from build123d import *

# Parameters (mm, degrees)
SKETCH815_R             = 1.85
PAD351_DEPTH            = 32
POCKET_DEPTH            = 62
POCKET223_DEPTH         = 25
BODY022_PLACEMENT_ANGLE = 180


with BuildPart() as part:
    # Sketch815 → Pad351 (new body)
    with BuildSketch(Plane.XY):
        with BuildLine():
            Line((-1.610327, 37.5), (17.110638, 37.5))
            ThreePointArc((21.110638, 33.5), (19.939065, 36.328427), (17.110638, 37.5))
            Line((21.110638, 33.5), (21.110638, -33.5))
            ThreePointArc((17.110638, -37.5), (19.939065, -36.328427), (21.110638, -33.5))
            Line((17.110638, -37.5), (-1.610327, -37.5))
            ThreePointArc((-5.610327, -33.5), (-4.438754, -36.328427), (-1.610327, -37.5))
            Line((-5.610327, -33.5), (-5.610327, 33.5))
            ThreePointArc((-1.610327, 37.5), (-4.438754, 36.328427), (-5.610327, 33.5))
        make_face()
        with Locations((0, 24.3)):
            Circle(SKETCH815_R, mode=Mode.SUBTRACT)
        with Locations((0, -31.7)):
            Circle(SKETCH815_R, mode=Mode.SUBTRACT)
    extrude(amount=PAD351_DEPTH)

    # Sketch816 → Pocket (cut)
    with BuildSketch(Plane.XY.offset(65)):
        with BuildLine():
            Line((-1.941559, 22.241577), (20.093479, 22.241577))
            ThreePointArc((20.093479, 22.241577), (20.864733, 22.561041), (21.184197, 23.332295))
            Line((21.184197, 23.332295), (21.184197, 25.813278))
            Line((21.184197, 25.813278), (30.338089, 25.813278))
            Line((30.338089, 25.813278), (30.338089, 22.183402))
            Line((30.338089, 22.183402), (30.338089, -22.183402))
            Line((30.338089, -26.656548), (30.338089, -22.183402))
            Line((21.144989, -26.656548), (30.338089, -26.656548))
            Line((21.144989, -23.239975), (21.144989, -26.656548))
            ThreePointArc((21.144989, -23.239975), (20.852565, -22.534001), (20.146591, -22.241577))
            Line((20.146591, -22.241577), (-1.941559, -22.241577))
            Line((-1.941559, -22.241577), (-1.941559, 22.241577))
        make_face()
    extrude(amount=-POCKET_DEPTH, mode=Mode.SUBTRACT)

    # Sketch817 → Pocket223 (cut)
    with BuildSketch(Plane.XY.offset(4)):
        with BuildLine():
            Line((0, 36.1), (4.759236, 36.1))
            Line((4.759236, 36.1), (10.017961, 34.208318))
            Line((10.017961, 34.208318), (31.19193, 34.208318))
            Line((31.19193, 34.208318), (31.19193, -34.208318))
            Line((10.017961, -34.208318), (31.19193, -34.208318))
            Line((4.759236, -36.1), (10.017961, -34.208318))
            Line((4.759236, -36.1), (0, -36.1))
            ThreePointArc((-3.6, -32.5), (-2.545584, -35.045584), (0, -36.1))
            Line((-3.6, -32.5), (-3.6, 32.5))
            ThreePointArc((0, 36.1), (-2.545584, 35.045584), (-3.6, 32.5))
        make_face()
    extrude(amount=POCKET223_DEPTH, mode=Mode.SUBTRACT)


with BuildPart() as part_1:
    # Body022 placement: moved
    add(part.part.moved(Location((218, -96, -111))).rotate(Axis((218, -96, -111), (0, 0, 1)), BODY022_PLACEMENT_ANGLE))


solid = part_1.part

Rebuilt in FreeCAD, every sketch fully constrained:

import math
import FreeCAD as App
import Part
import Sketcher

V = App.Vector
Q = App.Units.Quantity

doc = App.newDocument("Part")
params = doc.addObject("Spreadsheet::Sheet", "Params")
for row, (alias, value) in enumerate([
    ("sketch1_radius", "4 mm"),
    ("sketch1_diameter", "3.7 mm"),
    ("sketch1_height", "67 mm"),
    ("pad1_length", "32 mm"),
    ("pocket1_length", "62 mm"),
    ("sketch3_radius", "3.600001 mm"),
    ("sketch3_height", "65 mm"),
    ("pocket2_length", "25 mm"),
], start=1):
    params.set(f"A{row}", alias)
    params.set(f"B{row}", "=" + value)
    params.setAlias(f"B{row}", alias)

body = doc.addObject("PartDesign::Body", "Body")

sketch1 = body.newObject("Sketcher::SketchObject", "Sketch")
sketch1.AttachmentSupport = (doc.getObject("XY_Plane"), [""])
sketch1.MapMode = "FlatFace"
sketch1.addGeometry(Part.LineSegment(V(17.110638, 37.5, 0), V(-1.610327, 37.5, 0)), False)
sketch1.addGeometry(Part.ArcOfCircle(Part.Circle(V(-1.610327, 33.5, 0), V(0, 0, 1), 4), math.radians(90.000006), math.radians(179.999994)), False)
sketch1.addGeometry(Part.LineSegment(V(-5.610327, 33.5, 0), V(-5.610327, -33.5, 0)), False)
sketch1.addGeometry(Part.ArcOfCircle(Part.Circle(V(-1.610327, -33.5, 0), V(0, 0, 1), 4), math.radians(-179.999994), math.radians(-90.000006)), False)
sketch1.addGeometry(Part.LineSegment(V(-1.610327, -37.5, 0), V(17.110638, -37.5, 0)), False)
sketch1.addGeometry(Part.ArcOfCircle(Part.Circle(V(17.110638, -33.5, 0), V(0, 0, 1), 4), math.radians(-89.999994), math.radians(-0.000006)), False)
sketch1.addGeometry(Part.LineSegment(V(21.110638, -33.5, 0), V(21.110638, 33.5, 0)), False)
sketch1.addGeometry(Part.ArcOfCircle(Part.Circle(V(17.110638, 33.5, 0), V(0, 0, 1), 4), math.radians(0.000006), math.radians(89.999994)), False)
sketch1.addGeometry(Part.Circle(V(0, -31.7, 0), V(0, 0, 1), 1.85), False)
sketch1.addGeometry(Part.Circle(V(0, 24.3, 0), V(0, 0, 1), 1.85), False)
sketch1.addConstraint(Sketcher.Constraint("Tangent", 0, 2, 1, 1))
sketch1.addConstraint(Sketcher.Constraint("Tangent", 1, 2, 2, 1))
sketch1.addConstraint(Sketcher.Constraint("Tangent", 2, 2, 3, 1))
sketch1.addConstraint(Sketcher.Constraint("Tangent", 3, 2, 4, 1))
sketch1.addConstraint(Sketcher.Constraint("Tangent", 4, 2, 5, 1))
sketch1.addConstraint(Sketcher.Constraint("Tangent", 5, 2, 6, 1))
sketch1.addConstraint(Sketcher.Constraint("Tangent", 6, 2, 7, 1))
sketch1.addConstraint(Sketcher.Constraint("Tangent", 7, 2, 0, 1))
sketch1.addConstraint(Sketcher.Constraint("Horizontal", 0))
sketch1.addConstraint(Sketcher.Constraint("Vertical", 2))
sketch1.addConstraint(Sketcher.Constraint("Horizontal", 4))
sketch1.addConstraint(Sketcher.Constraint("Vertical", 6))
sketch1.addConstraint(Sketcher.Constraint("Equal", 1, 3))
sketch1.addConstraint(Sketcher.Constraint("Equal", 3, 5))
sketch1.addConstraint(Sketcher.Constraint("Equal", 5, 7))
sketch1.addConstraint(Sketcher.Constraint("Equal", 8, 9))
sketch1.addConstraint(Sketcher.Constraint("PointOnObject", 8, 3, -2))
sketch1.addConstraint(Sketcher.Constraint("PointOnObject", 9, 3, -2))
sketch1.addConstraint(Sketcher.Constraint("Radius", 1, Q("4 mm")))
sketch1.addConstraint(Sketcher.Constraint("Diameter", 8, Q("3.7 mm")))
sketch1.addConstraint(Sketcher.Constraint("DistanceY", 2, 2, 2, 1, Q("67 mm")))
sketch1.addConstraint(Sketcher.Constraint("DistanceY", 8, 3, 9, 3, Q("56 mm")))
sketch1.addConstraint(Sketcher.Constraint("DistanceY", -1, 1, 1, 3, Q("33.5 mm")))
sketch1.addConstraint(Sketcher.Constraint("DistanceY", 8, 3, -1, 1, Q("31.7 mm")))
sketch1.addConstraint(Sketcher.Constraint("DistanceX", 0, 2, 0, 1, Q("18.720965 mm")))
sketch1.addConstraint(Sketcher.Constraint("DistanceX", -1, 1, 4, 2, Q("17.110638 mm")))
sketch1.setExpression("Constraints[18]", "Params.sketch1_radius")
sketch1.setExpression("Constraints[19]", "Params.sketch1_diameter")
sketch1.setExpression("Constraints[20]", "Params.sketch1_height")
pad1 = body.newObject("PartDesign::Pad", "Pad")
pad1.Profile = sketch1
pad1.setExpression("Length", "Params.pad1_length")

sketch2 = body.newObject("Sketcher::SketchObject", "Sketch001")
sketch2.AttachmentSupport = (doc.getObject("XY_Plane"), [""])
sketch2.MapMode = "FlatFace"
sketch2.AttachmentOffset = App.Placement(V(0, 0, 65), App.Rotation())
sketch2.addGeometry(Part.LineSegment(V(20.093479, 22.241577, 0), V(-1.941559, 22.241577, 0)), False)
sketch2.addGeometry(Part.LineSegment(V(-1.941559, 22.241577, 0), V(-1.941559, -22.241577, 0)), False)
sketch2.addGeometry(Part.LineSegment(V(-1.941559, -22.241577, 0), V(20.146591, -22.241577, 0)), False)
sketch2.addGeometry(Part.ArcOfCircle(Part.Circle(V(20.146591, -23.239975, 0), V(0, 0, 1), 0.998398), math.radians(-0.000001), math.radians(90.000001)), False)
sketch2.addGeometry(Part.LineSegment(V(21.144989, -23.239975, 0), V(21.144989, -26.656548, 0)), False)
sketch2.addGeometry(Part.LineSegment(V(21.144989, -26.656548, 0), V(30.338089, -26.656548, 0)), False)
sketch2.addGeometry(Part.LineSegment(V(30.338089, -26.656548, 0), V(30.338089, 25.813278, 0)), False)
sketch2.addGeometry(Part.LineSegment(V(30.338089, 25.813278, 0), V(21.184197, 25.813278, 0)), False)
sketch2.addGeometry(Part.LineSegment(V(21.184197, 25.813278, 0), V(21.184197, 23.332295, 0)), False)
sketch2.addGeometry(Part.ArcOfCircle(Part.Circle(V(20.093479, 23.332295, 0), V(0, 0, 1), 1.090718), math.radians(-89.999983), math.radians(-0.000017)), False)
sketch2.addConstraint(Sketcher.Constraint("Coincident", 0, 2, 1, 1))
sketch2.addConstraint(Sketcher.Constraint("Coincident", 1, 2, 2, 1))
sketch2.addConstraint(Sketcher.Constraint("Tangent", 2, 2, 3, 2))
sketch2.addConstraint(Sketcher.Constraint("Tangent", 3, 1, 4, 1))
sketch2.addConstraint(Sketcher.Constraint("Coincident", 4, 2, 5, 1))
sketch2.addConstraint(Sketcher.Constraint("Coincident", 5, 2, 6, 1))
sketch2.addConstraint(Sketcher.Constraint("Coincident", 6, 2, 7, 1))
sketch2.addConstraint(Sketcher.Constraint("Coincident", 7, 2, 8, 1))
sketch2.addConstraint(Sketcher.Constraint("Tangent", 8, 2, 9, 2))
sketch2.addConstraint(Sketcher.Constraint("Tangent", 9, 1, 0, 1))
sketch2.addConstraint(Sketcher.Constraint("Horizontal", 0))
sketch2.addConstraint(Sketcher.Constraint("Vertical", 1))
sketch2.addConstraint(Sketcher.Constraint("Horizontal", 2))
sketch2.addConstraint(Sketcher.Constraint("Vertical", 4))
sketch2.addConstraint(Sketcher.Constraint("Horizontal", 5))
sketch2.addConstraint(Sketcher.Constraint("Vertical", 6))
sketch2.addConstraint(Sketcher.Constraint("Horizontal", 7))
sketch2.addConstraint(Sketcher.Constraint("Vertical", 8))
sketch2.addConstraint(Sketcher.Constraint("Radius", 9, Q("1.090718 mm")))
sketch2.addConstraint(Sketcher.Constraint("DistanceX", 5, 1, 5, 2, Q("9.1931 mm")))
sketch2.addConstraint(Sketcher.Constraint("Radius", 3, Q("0.998398 mm")))
sketch2.addConstraint(Sketcher.Constraint("DistanceX", 0, 2, 0, 1, Q("22.035038 mm")))
sketch2.addConstraint(Sketcher.Constraint("DistanceX", 2, 1, 2, 2, Q("22.08815 mm")))
sketch2.addConstraint(Sketcher.Constraint("DistanceY", 0, 2, 6, 2, Q("3.571701 mm")))
sketch2.addConstraint(Sketcher.Constraint("DistanceY", 1, 2, 1, 1, Q("44.483154 mm")))
sketch2.addConstraint(Sketcher.Constraint("DistanceY", 4, 2, 4, 1, Q("3.416573 mm")))
sketch2.addConstraint(Sketcher.Constraint("DistanceX", -1, 1, 3, 3, Q("20.146591 mm")))
sketch2.addConstraint(Sketcher.Constraint("DistanceY", 4, 2, -1, 1, Q("26.656548 mm")))
pocket1 = body.newObject("PartDesign::Pocket", "Pocket")
pocket1.Profile = sketch2
pocket1.setExpression("Length", "Params.pocket1_length")

sketch3 = body.newObject("Sketcher::SketchObject", "Sketch002")
sketch3.AttachmentSupport = (doc.getObject("XY_Plane"), [""])
sketch3.MapMode = "FlatFace"
sketch3.AttachmentOffset = App.Placement(V(0, 0, 4), App.Rotation())
sketch3.addGeometry(Part.LineSegment(V(4.759236, 36.1, 0), V(0, 36.1, 0)), False)
sketch3.addGeometry(Part.ArcOfCircle(Part.Circle(V(0.000001, 32.499999, 0), V(0, 0, 1), 3.600001), math.radians(90.000022), math.radians(179.999978)), False)
sketch3.addGeometry(Part.LineSegment(V(-3.6, 32.5, 0), V(-3.6, -32.5, 0)), False)
sketch3.addGeometry(Part.ArcOfCircle(Part.Circle(V(0.000001, -32.499999, 0), V(0, 0, 1), 3.600001), math.radians(-179.999978), math.radians(-90.000022)), False)
sketch3.addGeometry(Part.LineSegment(V(0, -36.1, 0), V(4.759236, -36.1, 0)), False)
sketch3.addGeometry(Part.LineSegment(V(4.759236, -36.1, 0), V(10.017961, -34.208318, 0)), False)
sketch3.addGeometry(Part.LineSegment(V(10.017961, -34.208318, 0), V(31.19193, -34.208318, 0)), False)
sketch3.addGeometry(Part.LineSegment(V(31.19193, -34.208318, 0), V(31.19193, 34.208318, 0)), False)
sketch3.addGeometry(Part.LineSegment(V(31.19193, 34.208318, 0), V(10.017961, 34.208318, 0)), False)
sketch3.addGeometry(Part.LineSegment(V(10.017961, 34.208318, 0), V(4.759236, 36.1, 0)), False)
sketch3.addConstraint(Sketcher.Constraint("Tangent", 0, 2, 1, 1))
sketch3.addConstraint(Sketcher.Constraint("Tangent", 1, 2, 2, 1))
sketch3.addConstraint(Sketcher.Constraint("Tangent", 2, 2, 3, 1))
sketch3.addConstraint(Sketcher.Constraint("Tangent", 3, 2, 4, 1))
sketch3.addConstraint(Sketcher.Constraint("Coincident", 4, 2, 5, 1))
sketch3.addConstraint(Sketcher.Constraint("Coincident", 5, 2, 6, 1))
sketch3.addConstraint(Sketcher.Constraint("Coincident", 6, 2, 7, 1))
sketch3.addConstraint(Sketcher.Constraint("Coincident", 7, 2, 8, 1))
sketch3.addConstraint(Sketcher.Constraint("Coincident", 8, 2, 9, 1))
sketch3.addConstraint(Sketcher.Constraint("Coincident", 9, 2, 0, 1))
sketch3.addConstraint(Sketcher.Constraint("Horizontal", 0))
sketch3.addConstraint(Sketcher.Constraint("Vertical", 2))
sketch3.addConstraint(Sketcher.Constraint("Horizontal", 4))
sketch3.addConstraint(Sketcher.Constraint("Horizontal", 6))
sketch3.addConstraint(Sketcher.Constraint("Vertical", 7))
sketch3.addConstraint(Sketcher.Constraint("Horizontal", 8))
sketch3.addConstraint(Sketcher.Constraint("Equal", 1, 3))
sketch3.addConstraint(Sketcher.Constraint("Symmetric", 1, 3, 3, 3, -1, 1))
sketch3.addConstraint(Sketcher.Constraint("Symmetric", 5, 2, 8, 2, -1))
sketch3.addConstraint(Sketcher.Constraint("Vertical", 4, 2, 9, 2))
sketch3.addConstraint(Sketcher.Constraint("Radius", 1, Q("3.600001 mm")))
sketch3.addConstraint(Sketcher.Constraint("DistanceY", 2, 2, 2, 1, Q("65 mm")))
sketch3.addConstraint(Sketcher.Constraint("DistanceX", 6, 1, 6, 2, Q("21.173969 mm")))
sketch3.addConstraint(Sketcher.Constraint("DistanceX", 0, 2, 0, 1, Q("4.759236 mm")))
sketch3.addConstraint(Sketcher.Constraint("DistanceY", 7, 1, 7, 2, Q("68.416636 mm")))
sketch3.addConstraint(Sketcher.Constraint("DistanceX", -1, 1, 5, 2, Q("10.017961 mm")))
sketch3.setExpression("Constraints[20]", "Params.sketch3_radius")
sketch3.setExpression("Constraints[21]", "Params.sketch3_height")
pocket2 = body.newObject("PartDesign::Pocket", "Pocket001")
pocket2.Profile = sketch3
pocket2.setExpression("Length", "Params.pocket2_length")
pocket2.Reversed = True
body2 = doc.addObject("PartDesign::Body", "Body001")
doc.recompute()

body.Placement = App.Placement(V(218, -96, -111), App.Rotation(V(0, 0, 1), 180))
boolean = body2.newObject("PartDesign::Boolean", "Boolean")
boolean.Type = "Fuse"
boolean.addObjects([body])

doc.recompute()
